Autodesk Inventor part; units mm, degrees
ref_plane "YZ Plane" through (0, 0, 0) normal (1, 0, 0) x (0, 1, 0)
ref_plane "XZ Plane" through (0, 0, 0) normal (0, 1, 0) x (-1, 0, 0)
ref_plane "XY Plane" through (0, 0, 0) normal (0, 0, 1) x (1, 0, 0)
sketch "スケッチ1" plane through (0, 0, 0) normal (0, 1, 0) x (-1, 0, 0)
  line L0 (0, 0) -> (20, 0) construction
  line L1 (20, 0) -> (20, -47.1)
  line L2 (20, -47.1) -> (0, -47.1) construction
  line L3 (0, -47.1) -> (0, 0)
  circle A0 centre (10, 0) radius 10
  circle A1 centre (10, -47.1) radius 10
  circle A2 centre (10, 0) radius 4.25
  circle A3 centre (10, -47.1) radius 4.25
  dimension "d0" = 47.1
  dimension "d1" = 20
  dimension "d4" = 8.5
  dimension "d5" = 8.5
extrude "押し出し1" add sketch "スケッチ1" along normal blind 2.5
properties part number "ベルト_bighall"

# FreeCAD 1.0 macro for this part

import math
import FreeCAD as App
import Part
import Sketcher
Q = App.Units.Quantity

doc = App.newDocument("Part")
body = doc.addObject("PartDesign::Body", "Body")

# Sketch on XZ plane
sketch1 = body.newObject("Sketcher::SketchObject", "Sketch")
sketch1.AttachmentSupport = (doc.getObject("XZ_Plane"), [""])
sketch1.MapMode = "FlatFace"
sketch1.addGeometry([
    Part.ArcOfCircle(Part.Circle(App.Vector(-10, 0, 0), App.Vector(0, 0, 1), 10), math.radians(0), math.radians(180)),  # 0
    Part.LineSegment(App.Vector(0, 0, 0), App.Vector(0, -47.1, 0)),  # 1
    Part.ArcOfCircle(Part.Circle(App.Vector(-10, -47.1, 0), App.Vector(0, 0, 1), 10), math.radians(180), math.radians(360)),  # 2
    Part.LineSegment(App.Vector(-20, -47.1, 0), App.Vector(-20, 0, 0)),  # 3
    Part.Circle(App.Vector(-10, 0, 0), App.Vector(0, 0, 1), 4.25),  # 4
    Part.Circle(App.Vector(-10, -47.1, 0), App.Vector(0, 0, 1), 4.25),  # 5
], False)
sketch1.addConstraint([
    Sketcher.Constraint("Tangent", 0, 1, 1, 1),
    Sketcher.Constraint("Tangent", 1, 2, 2, 2),
    Sketcher.Constraint("Tangent", 2, 1, 3, 1),
    Sketcher.Constraint("Tangent", 3, 2, 0, 2),
    Sketcher.Constraint("Vertical", 1),
    Sketcher.Constraint("Vertical", 3),
    Sketcher.Constraint("Coincident", 0, 1, -1, 1),
    Sketcher.Constraint("Coincident", 4, 3, 0, 3),
    Sketcher.Constraint("Coincident", 5, 3, 2, 3),
    Sketcher.Constraint("Equal", 4, 5),
    Sketcher.Constraint("Radius", 0, Q("10 mm")),
    Sketcher.Constraint("Diameter", 4, Q("8.5 mm")),
    Sketcher.Constraint("DistanceY", 1, 2, 1, 1, Q("47.1 mm")),
])
pad1 = body.newObject("PartDesign::Pad", "Pad")
pad1.Profile = sketch1
pad1.Length = 2.5
pad1.Reversed = True

doc.recompute()
